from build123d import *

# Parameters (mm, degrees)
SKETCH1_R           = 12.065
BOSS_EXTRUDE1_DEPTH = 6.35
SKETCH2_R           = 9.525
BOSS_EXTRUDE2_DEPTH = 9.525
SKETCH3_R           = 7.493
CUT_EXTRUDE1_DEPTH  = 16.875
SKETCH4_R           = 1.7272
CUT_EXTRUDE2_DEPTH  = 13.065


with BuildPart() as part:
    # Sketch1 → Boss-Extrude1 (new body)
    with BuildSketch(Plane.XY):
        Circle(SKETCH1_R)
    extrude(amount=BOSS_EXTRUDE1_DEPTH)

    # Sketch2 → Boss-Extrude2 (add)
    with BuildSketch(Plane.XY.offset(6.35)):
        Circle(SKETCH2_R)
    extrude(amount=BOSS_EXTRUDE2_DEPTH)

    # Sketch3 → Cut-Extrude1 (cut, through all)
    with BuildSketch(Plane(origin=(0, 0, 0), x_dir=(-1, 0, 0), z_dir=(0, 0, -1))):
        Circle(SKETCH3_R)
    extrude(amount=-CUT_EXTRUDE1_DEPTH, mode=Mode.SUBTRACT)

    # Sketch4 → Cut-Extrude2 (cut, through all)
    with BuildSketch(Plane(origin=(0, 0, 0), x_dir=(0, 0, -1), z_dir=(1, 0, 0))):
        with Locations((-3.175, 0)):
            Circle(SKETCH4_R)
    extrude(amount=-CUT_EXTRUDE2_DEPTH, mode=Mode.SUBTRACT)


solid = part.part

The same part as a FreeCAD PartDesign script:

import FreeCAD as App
import Part
import Sketcher

V = App.Vector
Q = App.Units.Quantity

doc = App.newDocument("Part")
body = doc.addObject("PartDesign::Body", "Body")

# Sketch on XY plane
sketch1 = body.newObject("Sketcher::SketchObject", "Sketch")
sketch1.AttachmentSupport = (doc.getObject("XY_Plane"), [""])
sketch1.MapMode = "FlatFace"
sketch1.addGeometry(Part.Circle(V(0, 0, 0), V(0, 0, 1), 12.065), False)
sketch1.addConstraint([
    Sketcher.Constraint("Coincident", 0, 3, -1, 1),
    Sketcher.Constraint("Diameter", 0, Q("0.95 in")),
])
pad1 = body.newObject("PartDesign::Pad", "Pad")
pad1.Profile = sketch1
pad1.Length = Q("0.25 in")

# Sketch on XY plane
sketch2 = body.newObject("Sketcher::SketchObject", "Sketch001")
sketch2.AttachmentSupport = (doc.getObject("XY_Plane"), [""])
sketch2.MapMode = "FlatFace"
sketch2.AttachmentOffset = App.Placement(V(0, 0, 0.25 * 25.4), App.Rotation())
sketch2.addGeometry(Part.Circle(V(0, 0, 0), V(0, 0, 1), 9.525), False)
sketch2.addConstraint([
    Sketcher.Constraint("Coincident", 0, 3, -1, 1),
    Sketcher.Constraint("Diameter", 0, Q("0.75 in")),
])
pad2 = body.newObject("PartDesign::Pad", "Pad001")
pad2.Profile = sketch2
pad2.Length = Q("0.375 in")

# Sketch on XY plane
sketch3 = body.newObject("Sketcher::SketchObject", "Sketch002")
sketch3.AttachmentSupport = (doc.getObject("XY_Plane"), [""])
sketch3.MapMode = "FlatFace"
sketch3.addGeometry(Part.Circle(V(0, 0, 0), V(0, 0, 1), 7.493), False)
sketch3.addConstraint([
    Sketcher.Constraint("Coincident", 0, 3, -1, 1),
    Sketcher.Constraint("Diameter", 0, Q("0.59 in")),
])
pocket1 = body.newObject("PartDesign::Pocket", "Pocket")
pocket1.Profile = sketch3
pocket1.Type = "ThroughAll"
pocket1.Reversed = True

# Sketch on YZ plane
sketch4 = body.newObject("Sketcher::SketchObject", "Sketch003")
sketch4.AttachmentSupport = (doc.getObject("YZ_Plane"), [""])
sketch4.MapMode = "FlatFace"
sketch4.addGeometry(Part.Circle(V(0, 3.175, 0), V(0, 0, 1), 1.7272), False)
sketch4.addConstraint([
    Sketcher.Constraint("PointOnObject", 0, 3, -2),
    Sketcher.Constraint("Diameter", 0, Q("0.136 in")),
    Sketcher.Constraint("DistanceY", -1, 1, 0, 3, Q("0.125 in")),
])
pocket2 = body.newObject("PartDesign::Pocket", "Pocket001")
pocket2.Profile = sketch4
pocket2.Type = "ThroughAll"

doc.recompute()
